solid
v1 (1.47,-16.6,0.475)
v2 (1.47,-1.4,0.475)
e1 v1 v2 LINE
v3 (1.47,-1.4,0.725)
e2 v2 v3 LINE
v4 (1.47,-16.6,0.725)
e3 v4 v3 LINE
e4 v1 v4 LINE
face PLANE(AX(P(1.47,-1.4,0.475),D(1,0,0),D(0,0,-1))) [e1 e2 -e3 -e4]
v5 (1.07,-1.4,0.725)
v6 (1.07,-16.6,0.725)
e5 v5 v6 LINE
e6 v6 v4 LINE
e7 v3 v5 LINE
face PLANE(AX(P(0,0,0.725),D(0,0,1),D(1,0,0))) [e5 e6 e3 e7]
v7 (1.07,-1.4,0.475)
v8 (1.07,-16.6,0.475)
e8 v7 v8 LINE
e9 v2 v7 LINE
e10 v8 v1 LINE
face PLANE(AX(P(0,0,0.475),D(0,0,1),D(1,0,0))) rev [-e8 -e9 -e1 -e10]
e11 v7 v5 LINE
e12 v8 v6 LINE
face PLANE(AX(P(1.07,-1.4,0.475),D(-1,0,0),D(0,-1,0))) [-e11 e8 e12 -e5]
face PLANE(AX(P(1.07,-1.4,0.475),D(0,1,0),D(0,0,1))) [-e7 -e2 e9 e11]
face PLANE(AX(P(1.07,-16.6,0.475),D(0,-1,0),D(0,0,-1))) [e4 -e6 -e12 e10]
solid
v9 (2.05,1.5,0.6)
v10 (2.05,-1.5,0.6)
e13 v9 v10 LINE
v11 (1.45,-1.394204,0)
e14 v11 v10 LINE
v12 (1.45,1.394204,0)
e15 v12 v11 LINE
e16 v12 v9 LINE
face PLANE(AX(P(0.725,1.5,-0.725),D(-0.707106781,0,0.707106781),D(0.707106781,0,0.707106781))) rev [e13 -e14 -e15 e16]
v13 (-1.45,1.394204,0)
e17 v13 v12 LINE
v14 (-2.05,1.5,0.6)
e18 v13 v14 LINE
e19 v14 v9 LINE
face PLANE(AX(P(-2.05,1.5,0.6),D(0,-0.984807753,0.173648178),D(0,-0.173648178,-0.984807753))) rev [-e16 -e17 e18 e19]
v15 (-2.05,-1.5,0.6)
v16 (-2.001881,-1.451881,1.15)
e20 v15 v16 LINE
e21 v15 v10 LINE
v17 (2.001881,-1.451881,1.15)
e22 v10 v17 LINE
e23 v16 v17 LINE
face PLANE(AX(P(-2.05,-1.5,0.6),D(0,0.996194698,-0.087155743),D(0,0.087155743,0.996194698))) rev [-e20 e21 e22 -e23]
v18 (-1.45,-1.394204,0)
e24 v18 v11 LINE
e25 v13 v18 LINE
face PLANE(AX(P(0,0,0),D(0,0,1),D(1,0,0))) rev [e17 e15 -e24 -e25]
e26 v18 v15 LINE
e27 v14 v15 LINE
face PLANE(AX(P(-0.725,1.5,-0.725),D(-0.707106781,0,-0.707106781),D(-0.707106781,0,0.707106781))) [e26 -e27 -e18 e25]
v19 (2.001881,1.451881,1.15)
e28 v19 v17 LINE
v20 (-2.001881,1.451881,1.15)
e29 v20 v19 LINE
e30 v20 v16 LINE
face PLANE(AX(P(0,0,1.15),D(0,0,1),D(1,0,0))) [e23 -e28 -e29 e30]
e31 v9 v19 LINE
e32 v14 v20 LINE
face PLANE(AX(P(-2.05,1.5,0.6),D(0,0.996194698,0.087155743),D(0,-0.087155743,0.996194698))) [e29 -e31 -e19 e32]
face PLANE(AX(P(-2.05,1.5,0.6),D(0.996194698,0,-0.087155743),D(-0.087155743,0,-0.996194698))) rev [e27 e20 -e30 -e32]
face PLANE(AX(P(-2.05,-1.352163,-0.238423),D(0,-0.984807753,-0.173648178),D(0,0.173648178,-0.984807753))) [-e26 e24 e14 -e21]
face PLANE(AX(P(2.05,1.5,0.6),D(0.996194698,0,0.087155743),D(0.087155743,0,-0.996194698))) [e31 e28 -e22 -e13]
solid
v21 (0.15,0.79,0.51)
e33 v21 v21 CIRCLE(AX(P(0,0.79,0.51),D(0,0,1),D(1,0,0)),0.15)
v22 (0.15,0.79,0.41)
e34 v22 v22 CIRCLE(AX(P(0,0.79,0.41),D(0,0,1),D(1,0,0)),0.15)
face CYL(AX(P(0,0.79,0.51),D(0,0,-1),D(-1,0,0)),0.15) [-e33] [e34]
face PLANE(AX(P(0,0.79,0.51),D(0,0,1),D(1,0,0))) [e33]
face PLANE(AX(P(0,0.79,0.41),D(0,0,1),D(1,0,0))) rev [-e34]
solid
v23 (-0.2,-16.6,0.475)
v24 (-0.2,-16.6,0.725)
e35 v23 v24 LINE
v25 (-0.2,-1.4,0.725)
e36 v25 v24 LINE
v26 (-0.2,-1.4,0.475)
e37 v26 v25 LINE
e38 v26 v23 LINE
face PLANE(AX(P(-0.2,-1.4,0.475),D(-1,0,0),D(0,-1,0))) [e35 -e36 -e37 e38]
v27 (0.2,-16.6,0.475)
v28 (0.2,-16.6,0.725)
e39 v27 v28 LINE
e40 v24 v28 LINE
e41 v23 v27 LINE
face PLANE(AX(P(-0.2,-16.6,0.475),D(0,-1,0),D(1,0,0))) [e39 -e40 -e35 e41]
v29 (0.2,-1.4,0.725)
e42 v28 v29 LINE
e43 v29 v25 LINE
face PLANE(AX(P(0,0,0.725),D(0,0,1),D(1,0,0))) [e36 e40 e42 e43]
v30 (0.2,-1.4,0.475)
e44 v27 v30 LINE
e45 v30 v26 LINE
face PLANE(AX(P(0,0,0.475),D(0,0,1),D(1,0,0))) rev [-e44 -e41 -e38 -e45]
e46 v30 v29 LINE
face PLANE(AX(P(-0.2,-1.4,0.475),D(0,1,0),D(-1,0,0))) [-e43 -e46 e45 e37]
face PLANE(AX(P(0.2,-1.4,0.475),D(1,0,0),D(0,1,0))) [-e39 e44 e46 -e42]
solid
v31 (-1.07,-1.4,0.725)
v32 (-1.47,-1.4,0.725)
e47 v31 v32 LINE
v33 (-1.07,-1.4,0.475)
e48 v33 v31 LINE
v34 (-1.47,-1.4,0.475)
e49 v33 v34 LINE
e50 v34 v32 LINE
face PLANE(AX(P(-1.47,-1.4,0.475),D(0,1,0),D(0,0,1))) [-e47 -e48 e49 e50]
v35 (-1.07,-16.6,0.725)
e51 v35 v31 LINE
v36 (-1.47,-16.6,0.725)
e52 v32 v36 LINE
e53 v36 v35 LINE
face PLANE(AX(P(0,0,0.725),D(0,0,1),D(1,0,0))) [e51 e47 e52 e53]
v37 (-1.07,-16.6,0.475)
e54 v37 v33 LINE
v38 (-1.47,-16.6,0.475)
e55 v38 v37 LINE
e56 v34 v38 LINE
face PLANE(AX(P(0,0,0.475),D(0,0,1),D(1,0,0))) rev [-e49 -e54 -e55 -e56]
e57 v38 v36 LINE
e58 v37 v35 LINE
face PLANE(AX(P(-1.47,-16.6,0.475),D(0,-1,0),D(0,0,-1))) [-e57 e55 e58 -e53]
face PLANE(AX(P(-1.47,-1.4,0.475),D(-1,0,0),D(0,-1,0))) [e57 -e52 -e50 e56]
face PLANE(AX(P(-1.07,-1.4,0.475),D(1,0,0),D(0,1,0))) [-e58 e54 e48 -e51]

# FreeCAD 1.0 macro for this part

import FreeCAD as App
import Part
import Sketcher

V = App.Vector
Q = App.Units.Quantity

doc = App.newDocument("Part")
body = doc.addObject("PartDesign::Body", "Body")

# Sketch on XY plane
sketch1 = body.newObject("Sketcher::SketchObject", "Sketch")
sketch1.AttachmentSupport = (doc.getObject("XY_Plane"), [""])
sketch1.MapMode = "FlatFace"
sketch1.addGeometry(Part.LineSegment(V(-2, 1.5, 0), V(-2, -1.5, 0)), False)
sketch1.addGeometry(Part.LineSegment(V(-2, -1.5, 0), V(2, -1.5, 0)), False)
sketch1.addGeometry(Part.LineSegment(V(2, -1.5, 0), V(2, 1.5, 0)), False)
sketch1.addGeometry(Part.LineSegment(V(2, 1.5, 0), V(-2, 1.5, 0)), False)
sketch1.addConstraint(Sketcher.Constraint("Coincident", 0, 2, 1, 1))
sketch1.addConstraint(Sketcher.Constraint("Coincident", 1, 2, 2, 1))
sketch1.addConstraint(Sketcher.Constraint("Coincident", 2, 2, 3, 1))
sketch1.addConstraint(Sketcher.Constraint("Coincident", 3, 2, 0, 1))
sketch1.addConstraint(Sketcher.Constraint("Vertical", 0))
sketch1.addConstraint(Sketcher.Constraint("Horizontal", 1))
sketch1.addConstraint(Sketcher.Constraint("Vertical", 2))
sketch1.addConstraint(Sketcher.Constraint("Horizontal", 3))
sketch1.addConstraint(Sketcher.Constraint("Symmetric", 0, 2, 2, 2, -1, 1))
sketch1.addConstraint(Sketcher.Constraint("DistanceY", 0, 2, 0, 1, Q("3 mm")))
sketch1.addConstraint(Sketcher.Constraint("DistanceX", 1, 1, 1, 2, Q("4.1 mm")))
pad1 = body.newObject("PartDesign::Pad", "Pad")
pad1.Profile = sketch1
pad1.Length = 1.15

# Sketch on XZ plane
sketch2 = body.newObject("Sketcher::SketchObject", "Sketch001")
sketch2.AttachmentSupport = (doc.getObject("XZ_Plane"), [""])
sketch2.MapMode = "FlatFace"
sketch2.AttachmentOffset = App.Placement(V(0, 0, 1.5), App.Rotation())
sketch2.addGeometry(Part.LineSegment(V(-1.45, 0, 0), V(-2.05, 0.6, 0)), False)
sketch2.addGeometry(Part.LineSegment(V(-2.05, 0.6, 0), V(-2.05, 0, 0)), False)
sketch2.addGeometry(Part.LineSegment(V(-2.05, 0, 0), V(-1.45, 0, 0)), False)
sketch2.addGeometry(Part.LineSegment(V(2.05, 0.6, 0), V(1.45, 0, 0)), False)
sketch2.addGeometry(Part.LineSegment(V(1.45, 0, 0), V(2.05, 0, 0)), False)
sketch2.addGeometry(Part.LineSegment(V(2.05, 0, 0), V(2.05, 0.6, 0)), False)
sketch2.addGeometry(Part.LineSegment(V(-2.05, 0.6, 0), V(-2.002, 1.15, 0)), False)
sketch2.addGeometry(Part.LineSegment(V(-2.002, 1.15, 0), V(-2.05, 1.15, 0)), False)
sketch2.addGeometry(Part.LineSegment(V(-2.05, 1.15, 0), V(-2.05, 0.6, 0)), False)
sketch2.addGeometry(Part.LineSegment(V(2.002, 1.15, 0), V(2.05, 0.6, 0)), False)
sketch2.addGeometry(Part.LineSegment(V(2.05, 0.6, 0), V(2.05, 1.15, 0)), False)
sketch2.addGeometry(Part.LineSegment(V(2.05, 1.15, 0), V(2.002, 1.15, 0)), False)
sketch2.addConstraint(Sketcher.Constraint("Coincident", 0, 2, 1, 1))
sketch2.addConstraint(Sketcher.Constraint("Coincident", 1, 2, 2, 1))
sketch2.addConstraint(Sketcher.Constraint("Coincident", 2, 2, 0, 1))
sketch2.addConstraint(Sketcher.Constraint("Coincident", 3, 2, 4, 1))
sketch2.addConstraint(Sketcher.Constraint("Coincident", 4, 2, 5, 1))
sketch2.addConstraint(Sketcher.Constraint("Coincident", 5, 2, 3, 1))
sketch2.addConstraint(Sketcher.Constraint("Coincident", 6, 2, 7, 1))
sketch2.addConstraint(Sketcher.Constraint("Coincident", 7, 2, 8, 1))
sketch2.addConstraint(Sketcher.Constraint("Coincident", 8, 2, 6, 1))
sketch2.addConstraint(Sketcher.Constraint("Coincident", 9, 2, 10, 1))
sketch2.addConstraint(Sketcher.Constraint("Coincident", 10, 2, 11, 1))
sketch2.addConstraint(Sketcher.Constraint("Coincident", 11, 2, 9, 1))
sketch2.addConstraint(Sketcher.Constraint("Vertical", 1))
sketch2.addConstraint(Sketcher.Constraint("Horizontal", 2))
sketch2.addConstraint(Sketcher.Constraint("Horizontal", 4))
sketch2.addConstraint(Sketcher.Constraint("Vertical", 5))
sketch2.addConstraint(Sketcher.Constraint("Horizontal", 7))
sketch2.addConstraint(Sketcher.Constraint("Vertical", 8))
sketch2.addConstraint(Sketcher.Constraint("Vertical", 10))
sketch2.addConstraint(Sketcher.Constraint("Horizontal", 11))
sketch2.addConstraint(Sketcher.Constraint("Coincident", 8, 2, 0, 2))
sketch2.addConstraint(Sketcher.Constraint("Coincident", 9, 2, 5, 2))
sketch2.addConstraint(Sketcher.Constraint("Symmetric", 2, 2, 3, 2, -1, 1))
sketch2.addConstraint(Sketcher.Constraint("Symmetric", 1, 2, 4, 2, -2))
sketch2.addConstraint(Sketcher.Constraint("Symmetric", 6, 2, 11, 2, -2))
sketch2.addConstraint(Sketcher.Constraint("Perpendicular", 0, 3))
sketch2.addConstraint(Sketcher.Constraint("Horizontal", 0, 2, 5, 2))
sketch2.addConstraint(Sketcher.Constraint("Angle", 6, Q("85 deg")))
sketch2.addConstraint(Sketcher.Constraint("DistanceX", 2, 1, 2, 2, Q("0.6 mm")))
sketch2.addConstraint(Sketcher.Constraint("DistanceY", 8, 2, 8, 1, Q("0.55 mm")))
sketch2.addConstraint(Sketcher.Constraint("DistanceX", 2, 2, 3, 2, Q("2.9 mm")))
pocket1 = body.newObject("PartDesign::Pocket", "Pocket")
pocket1.Profile = sketch2
pocket1.Type = "ThroughAll"

# Sketch on YZ plane
sketch3 = body.newObject("Sketcher::SketchObject", "Sketch002")
sketch3.AttachmentSupport = (doc.getObject("YZ_Plane"), [""])
sketch3.MapMode = "FlatFace"
sketch3.AttachmentOffset = App.Placement(V(0, 0, 2.5), App.Rotation())
sketch3.addGeometry(Part.LineSegment(V(-1.5, 0.6, 0), V(-1.5, 0, 0)), False)
sketch3.addGeometry(Part.LineSegment(V(-1.5, 0, 0), V(-1.394, 0, 0)), False)
sketch3.addGeometry(Part.LineSegment(V(-1.394, 0, 0), V(-1.5, 0.6, 0)), False)
sketch3.addGeometry(Part.LineSegment(V(-1.5, 0.6, 0), V(-1.452, 1.15, 0)), False)
sketch3.addGeometry(Part.LineSegment(V(-1.452, 1.15, 0), V(-1.5, 1.15, 0)), False)
sketch3.addGeometry(Part.LineSegment(V(-1.5, 1.15, 0), V(-1.5, 0.6, 0)), False)
sketch3.addGeometry(Part.LineSegment(V(1.452, 1.15, 0), V(1.5, 0.6, 0)), False)
sketch3.addGeometry(Part.LineSegment(V(1.5, 0.6, 0), V(1.5, 1.15, 0)), False)
sketch3.addGeometry(Part.LineSegment(V(1.5, 1.15, 0), V(1.452, 1.15, 0)), False)
sketch3.addGeometry(Part.LineSegment(V(1.5, 0.6, 0), V(1.394, 0, 0)), False)
sketch3.addGeometry(Part.LineSegment(V(1.394, 0, 0), V(1.5, 0, 0)), False)
sketch3.addGeometry(Part.LineSegment(V(1.5, 0, 0), V(1.5, 0.6, 0)), False)
sketch3.addConstraint(Sketcher.Constraint("Coincident", 0, 2, 1, 1))
sketch3.addConstraint(Sketcher.Constraint("Coincident", 1, 2, 2, 1))
sketch3.addConstraint(Sketcher.Constraint("Coincident", 2, 2, 0, 1))
sketch3.addConstraint(Sketcher.Constraint("Coincident", 3, 2, 4, 1))
sketch3.addConstraint(Sketcher.Constraint("Coincident", 4, 2, 5, 1))
sketch3.addConstraint(Sketcher.Constraint("Coincident", 5, 2, 3, 1))
sketch3.addConstraint(Sketcher.Constraint("Coincident", 6, 2, 7, 1))
sketch3.addConstraint(Sketcher.Constraint("Coincident", 7, 2, 8, 1))
sketch3.addConstraint(Sketcher.Constraint("Coincident", 8, 2, 6, 1))
sketch3.addConstraint(Sketcher.Constraint("Coincident", 9, 2, 10, 1))
sketch3.addConstraint(Sketcher.Constraint("Coincident", 10, 2, 11, 1))
sketch3.addConstraint(Sketcher.Constraint("Coincident", 11, 2, 9, 1))
sketch3.addConstraint(Sketcher.Constraint("Vertical", 0))
sketch3.addConstraint(Sketcher.Constraint("Horizontal", 1))
sketch3.addConstraint(Sketcher.Constraint("Horizontal", 4))
sketch3.addConstraint(Sketcher.Constraint("Vertical", 5))
sketch3.addConstraint(Sketcher.Constraint("Vertical", 7))
sketch3.addConstraint(Sketcher.Constraint("Horizontal", 8))
sketch3.addConstraint(Sketcher.Constraint("Horizontal", 10))
sketch3.addConstraint(Sketcher.Constraint("Vertical", 11))
sketch3.addConstraint(Sketcher.Constraint("Coincident", 5, 2, 2, 2))
sketch3.addConstraint(Sketcher.Constraint("Coincident", 11, 2, 6, 2))
sketch3.addConstraint(Sketcher.Constraint("Symmetric", 1, 2, 9, 2, -1, 1))
sketch3.addConstraint(Sketcher.Constraint("Symmetric", 2, 2, 6, 2, -2))
sketch3.addConstraint(Sketcher.Constraint("Symmetric", 3, 2, 8, 2, -2))
sketch3.addConstraint(Sketcher.Constraint("PointOnObject", 0, 2, -1))
sketch3.addConstraint(Sketcher.Constraint("Angle", 2, Q("100 deg")))
sketch3.addConstraint(Sketcher.Constraint("Angle", 3, Q("85 deg")))
sketch3.addConstraint(Sketcher.Constraint("DistanceY", 0, 2, 0, 1, Q("0.6 mm")))
sketch3.addConstraint(Sketcher.Constraint("DistanceX", 2, 2, 6, 2, Q("3 mm")))
sketch3.addConstraint(Sketcher.Constraint("DistanceY", 5, 2, 5, 1, Q("0.55 mm")))
pocket2 = body.newObject("PartDesign::Pocket", "Pocket001")
pocket2.Profile = sketch3
pocket2.Type = "ThroughAll"
body2 = doc.addObject("PartDesign::Body", "Body001")

# Sketch on XY plane
sketch4 = body2.newObject("Sketcher::SketchObject", "Sketch003")
sketch4.AttachmentSupport = (doc.getObject("XY_Plane001"), [""])
sketch4.MapMode = "FlatFace"
sketch4.AttachmentOffset = App.Placement(V(0, 0, 0.6), App.Rotation())
sketch4.addGeometry(Part.LineSegment(V(-1.47, -1.4, 0), V(-1.47, -16.6, 0)), False)
sketch4.addGeometry(Part.LineSegment(V(-1.47, -16.6, 0), V(-1.07, -16.6, 0)), False)
sketch4.addGeometry(Part.LineSegment(V(-1.07, -16.6, 0), V(-1.07, -1.4, 0)), False)
sketch4.addGeometry(Part.LineSegment(V(-1.07, -1.4, 0), V(-1.47, -1.4, 0)), False)
sketch4.addConstraint(Sketcher.Constraint("Coincident", 0, 2, 1, 1))
sketch4.addConstraint(Sketcher.Constraint("Coincident", 1, 2, 2, 1))
sketch4.addConstraint(Sketcher.Constraint("Coincident", 2, 2, 3, 1))
sketch4.addConstraint(Sketcher.Constraint("Coincident", 3, 2, 0, 1))
sketch4.addConstraint(Sketcher.Constraint("Vertical", 0))
sketch4.addConstraint(Sketcher.Constraint("Horizontal", 1))
sketch4.addConstraint(Sketcher.Constraint("Vertical", 2))
sketch4.addConstraint(Sketcher.Constraint("Horizontal", 3))
sketch4.addConstraint(Sketcher.Constraint("DistanceX", 1, 1, 1, 2, Q("0.4 mm")))
sketch4.addConstraint(Sketcher.Constraint("DistanceY", 0, 2, 0, 1, Q("15.2 mm")))
sketch4.addConstraint(Sketcher.Constraint("DistanceY", 0, 2, -1, 1, Q("16.6 mm")))
sketch4.addConstraint(Sketcher.Constraint("DistanceX", 0, 2, -1, 1, Q("1.47 mm")))
pad2 = body2.newObject("PartDesign::Pad", "Pad001")
pad2.Profile = sketch4
pad2.Type = "TwoLengths"
pad2.Length = 0.125
pad2.Length2 = 0.125
body3 = doc.addObject("PartDesign::Body", "Body002")

# Sketch on XY plane
sketch5 = body3.newObject("Sketcher::SketchObject", "Sketch004")
sketch5.AttachmentSupport = (doc.getObject("XY_Plane002"), [""])
sketch5.MapMode = "FlatFace"
sketch5.AttachmentOffset = App.Placement(V(0, 0, 0.6), App.Rotation())
sketch5.addGeometry(Part.LineSegment(V(-0.2, -1.4, 0), V(-0.2, -16.6, 0)), False)
sketch5.addGeometry(Part.LineSegment(V(-0.2, -16.6, 0), V(0.2, -16.6, 0)), False)
sketch5.addGeometry(Part.LineSegment(V(0.2, -16.6, 0), V(0.2, -1.4, 0)), False)
sketch5.addGeometry(Part.LineSegment(V(0.2, -1.4, 0), V(-0.2, -1.4, 0)), False)
sketch5.addConstraint(Sketcher.Constraint("Coincident", 0, 2, 1, 1))
sketch5.addConstraint(Sketcher.Constraint("Coincident", 1, 2, 2, 1))
sketch5.addConstraint(Sketcher.Constraint("Coincident", 2, 2, 3, 1))
sketch5.addConstraint(Sketcher.Constraint("Coincident", 3, 2, 0, 1))
sketch5.addConstraint(Sketcher.Constraint("Vertical", 0))
sketch5.addConstraint(Sketcher.Constraint("Horizontal", 1))
sketch5.addConstraint(Sketcher.Constraint("Vertical", 2))
sketch5.addConstraint(Sketcher.Constraint("Horizontal", 3))
sketch5.addConstraint(Sketcher.Constraint("DistanceX", 1, 1, 1, 2, Q("0.4 mm")))
sketch5.addConstraint(Sketcher.Constraint("DistanceY", 0, 2, 0, 1, Q("15.2 mm")))
sketch5.addConstraint(Sketcher.Constraint("DistanceX", 0, 2, -1, 1, Q("0.2 mm")))
sketch5.addConstraint(Sketcher.Constraint("DistanceY", 0, 2, -1, 1, Q("16.6 mm")))
pad3 = body3.newObject("PartDesign::Pad", "Pad002")
pad3.Profile = sketch5
pad3.Type = "TwoLengths"
pad3.Length = 0.125
pad3.Length2 = 0.125
body4 = doc.addObject("PartDesign::Body", "Body003")

# Sketch on XY plane
sketch6 = body4.newObject("Sketcher::SketchObject", "Sketch005")
sketch6.AttachmentSupport = (doc.getObject("XY_Plane003"), [""])
sketch6.MapMode = "FlatFace"
sketch6.AttachmentOffset = App.Placement(V(0, 0, 0.6), App.Rotation())
sketch6.addGeometry(Part.LineSegment(V(1.07, -1.4, 0), V(1.07, -16.6, 0)), False)
sketch6.addGeometry(Part.LineSegment(V(1.07, -16.6, 0), V(1.47, -16.6, 0)), False)
sketch6.addGeometry(Part.LineSegment(V(1.47, -16.6, 0), V(1.47, -1.4, 0)), False)
sketch6.addGeometry(Part.LineSegment(V(1.47, -1.4, 0), V(1.07, -1.4, 0)), False)
sketch6.addConstraint(Sketcher.Constraint("Coincident", 0, 2, 1, 1))
sketch6.addConstraint(Sketcher.Constraint("Coincident", 1, 2, 2, 1))
sketch6.addConstraint(Sketcher.Constraint("Coincident", 2, 2, 3, 1))
sketch6.addConstraint(Sketcher.Constraint("Coincident", 3, 2, 0, 1))
sketch6.addConstraint(Sketcher.Constraint("Vertical", 0))
sketch6.addConstraint(Sketcher.Constraint("Horizontal", 1))
sketch6.addConstraint(Sketcher.Constraint("Vertical", 2))
sketch6.addConstraint(Sketcher.Constraint("Horizontal", 3))
sketch6.addConstraint(Sketcher.Constraint("DistanceX", 1, 1, 1, 2, Q("0.4 mm")))
sketch6.addConstraint(Sketcher.Constraint("DistanceY", 0, 2, 0, 1, Q("15.2 mm")))
sketch6.addConstraint(Sketcher.Constraint("DistanceY", 0, 2, -1, 1, Q("16.6 mm")))
sketch6.addConstraint(Sketcher.Constraint("DistanceX", -1, 1, 0, 2, Q("1.07 mm")))
pad4 = body4.newObject("PartDesign::Pad", "Pad003")
pad4.Profile = sketch6
pad4.Type = "TwoLengths"
pad4.Length = 0.125
pad4.Length2 = 0.125
body5 = doc.addObject("PartDesign::Body", "Body004")

# Sketch on XY plane
sketch7 = body5.newObject("Sketcher::SketchObject", "Sketch006")
sketch7.AttachmentSupport = (doc.getObject("XY_Plane004"), [""])
sketch7.MapMode = "FlatFace"
sketch7.AttachmentOffset = App.Placement(V(0, 0, 0.41), App.Rotation())
sketch7.addGeometry(Part.Circle(V(0, 0.79, 0), V(0, 0, 1), 0.15), False)
sketch7.addConstraint(Sketcher.Constraint("PointOnObject", 0, 3, -2))
sketch7.addConstraint(Sketcher.Constraint("Diameter", 0, Q("0.3 mm")))
sketch7.addConstraint(Sketcher.Constraint("DistanceY", -1, 1, 0, 3, Q("0.79 mm")))
pad5 = body5.newObject("PartDesign::Pad", "Pad004")
pad5.Profile = sketch7
pad5.Length = 0.1

doc.recompute()
